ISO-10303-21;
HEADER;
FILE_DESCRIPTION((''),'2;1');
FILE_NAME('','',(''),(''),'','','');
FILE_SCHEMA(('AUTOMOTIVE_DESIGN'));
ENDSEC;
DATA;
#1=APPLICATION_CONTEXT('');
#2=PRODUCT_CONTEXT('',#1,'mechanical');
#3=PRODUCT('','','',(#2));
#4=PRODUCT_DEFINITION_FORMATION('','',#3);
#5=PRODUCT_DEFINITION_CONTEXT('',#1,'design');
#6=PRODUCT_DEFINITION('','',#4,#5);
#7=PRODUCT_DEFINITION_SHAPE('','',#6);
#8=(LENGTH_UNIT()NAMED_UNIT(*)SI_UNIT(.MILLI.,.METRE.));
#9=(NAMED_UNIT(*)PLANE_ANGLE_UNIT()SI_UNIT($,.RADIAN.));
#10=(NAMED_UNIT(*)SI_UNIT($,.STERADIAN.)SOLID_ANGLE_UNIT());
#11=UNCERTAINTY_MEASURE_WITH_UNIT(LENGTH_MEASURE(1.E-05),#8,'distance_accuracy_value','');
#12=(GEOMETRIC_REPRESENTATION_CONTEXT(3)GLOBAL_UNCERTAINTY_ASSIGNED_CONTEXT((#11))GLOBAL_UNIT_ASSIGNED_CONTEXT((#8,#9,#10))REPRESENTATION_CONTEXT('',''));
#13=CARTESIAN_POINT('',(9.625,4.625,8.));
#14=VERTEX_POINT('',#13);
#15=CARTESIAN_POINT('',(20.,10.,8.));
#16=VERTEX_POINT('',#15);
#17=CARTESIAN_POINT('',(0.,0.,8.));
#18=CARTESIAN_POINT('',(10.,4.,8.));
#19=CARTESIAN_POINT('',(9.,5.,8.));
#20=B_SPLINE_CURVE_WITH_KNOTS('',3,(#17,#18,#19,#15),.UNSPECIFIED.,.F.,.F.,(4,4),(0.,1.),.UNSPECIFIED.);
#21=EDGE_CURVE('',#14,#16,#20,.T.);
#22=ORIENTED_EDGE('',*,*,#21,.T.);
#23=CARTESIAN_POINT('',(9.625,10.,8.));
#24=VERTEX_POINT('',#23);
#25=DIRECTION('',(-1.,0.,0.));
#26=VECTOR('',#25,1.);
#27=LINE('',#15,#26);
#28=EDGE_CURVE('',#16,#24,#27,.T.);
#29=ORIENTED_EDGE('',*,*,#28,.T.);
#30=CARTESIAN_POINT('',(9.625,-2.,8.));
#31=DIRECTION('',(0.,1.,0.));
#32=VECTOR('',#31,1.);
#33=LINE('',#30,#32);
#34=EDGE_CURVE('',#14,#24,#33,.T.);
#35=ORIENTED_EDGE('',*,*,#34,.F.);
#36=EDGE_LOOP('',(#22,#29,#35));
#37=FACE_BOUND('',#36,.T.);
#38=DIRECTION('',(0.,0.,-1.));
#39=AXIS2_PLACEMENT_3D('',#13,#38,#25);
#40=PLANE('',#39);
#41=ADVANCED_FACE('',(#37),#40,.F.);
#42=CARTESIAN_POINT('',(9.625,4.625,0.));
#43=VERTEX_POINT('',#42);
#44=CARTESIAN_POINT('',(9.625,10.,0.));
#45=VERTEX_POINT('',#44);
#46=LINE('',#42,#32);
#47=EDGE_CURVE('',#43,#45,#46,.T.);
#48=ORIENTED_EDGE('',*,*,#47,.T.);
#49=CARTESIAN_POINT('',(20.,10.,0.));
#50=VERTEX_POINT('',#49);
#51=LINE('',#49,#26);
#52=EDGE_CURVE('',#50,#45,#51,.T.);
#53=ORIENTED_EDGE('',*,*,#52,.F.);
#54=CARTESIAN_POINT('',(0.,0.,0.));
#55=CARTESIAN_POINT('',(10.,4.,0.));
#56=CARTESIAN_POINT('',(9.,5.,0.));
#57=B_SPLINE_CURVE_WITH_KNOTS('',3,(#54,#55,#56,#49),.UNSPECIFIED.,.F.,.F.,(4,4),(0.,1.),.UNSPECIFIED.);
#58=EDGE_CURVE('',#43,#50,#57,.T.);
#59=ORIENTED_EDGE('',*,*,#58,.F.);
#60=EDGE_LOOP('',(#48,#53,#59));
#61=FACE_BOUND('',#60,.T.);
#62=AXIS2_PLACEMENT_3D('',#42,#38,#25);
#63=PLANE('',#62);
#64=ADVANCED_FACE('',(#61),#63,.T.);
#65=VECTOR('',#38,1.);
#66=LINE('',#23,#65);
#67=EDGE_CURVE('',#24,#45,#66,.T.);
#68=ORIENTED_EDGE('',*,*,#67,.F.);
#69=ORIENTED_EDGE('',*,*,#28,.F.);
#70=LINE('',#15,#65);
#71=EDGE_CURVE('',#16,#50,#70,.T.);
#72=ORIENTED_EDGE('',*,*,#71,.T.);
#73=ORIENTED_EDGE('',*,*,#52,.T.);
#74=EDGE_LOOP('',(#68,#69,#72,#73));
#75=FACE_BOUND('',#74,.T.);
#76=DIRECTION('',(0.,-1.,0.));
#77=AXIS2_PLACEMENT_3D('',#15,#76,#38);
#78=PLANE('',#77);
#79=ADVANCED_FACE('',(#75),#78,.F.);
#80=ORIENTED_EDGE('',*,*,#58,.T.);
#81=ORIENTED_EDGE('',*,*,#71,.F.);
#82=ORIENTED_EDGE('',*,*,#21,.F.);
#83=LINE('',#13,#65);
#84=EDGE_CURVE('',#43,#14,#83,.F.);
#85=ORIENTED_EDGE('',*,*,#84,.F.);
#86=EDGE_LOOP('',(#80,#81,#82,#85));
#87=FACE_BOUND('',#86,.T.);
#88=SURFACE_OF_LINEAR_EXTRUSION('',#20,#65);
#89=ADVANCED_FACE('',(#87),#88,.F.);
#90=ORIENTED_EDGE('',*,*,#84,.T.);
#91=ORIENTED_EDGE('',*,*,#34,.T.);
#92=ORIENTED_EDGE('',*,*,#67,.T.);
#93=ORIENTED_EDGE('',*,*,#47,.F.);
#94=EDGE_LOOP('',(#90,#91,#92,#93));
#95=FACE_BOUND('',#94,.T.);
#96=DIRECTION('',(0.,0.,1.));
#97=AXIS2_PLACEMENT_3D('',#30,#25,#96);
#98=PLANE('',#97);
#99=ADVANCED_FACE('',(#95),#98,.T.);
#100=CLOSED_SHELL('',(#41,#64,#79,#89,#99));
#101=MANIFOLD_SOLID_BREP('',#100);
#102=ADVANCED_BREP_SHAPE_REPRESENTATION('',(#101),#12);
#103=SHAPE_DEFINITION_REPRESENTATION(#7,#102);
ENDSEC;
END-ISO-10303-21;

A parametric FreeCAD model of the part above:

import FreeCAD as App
import Part
import Sketcher

V = App.Vector
Q = App.Units.Quantity

doc = App.newDocument("Part")
body = doc.addObject("PartDesign::Body", "Body")

sketch1 = doc.addObject("Sketcher::SketchObject", "Sketch")
body.addObject(sketch1)
sketch1.AttachmentSupport = (doc.XY_Plane, [""])
sketch1.MapMode = "FlatFace"
sketch1.addGeometry([
    Part.LineSegment(V(20, 10, 0), V(0, 10, 0)),
    Part.LineSegment(V(0, 10, 0), V(0, 0, 0)),
    Part.BSplineCurve([V(0, 0, 0), V(10, 4, 0), V(9, 5, 0), V(20, 10, 0)], [4, 4], [0, 1], False, 3, [1, 1, 1, 1], False),
], False)
sketch1.addConstraint([
    Sketcher.Constraint("Block", 2),
    Sketcher.Constraint("Coincident", 0, 2, 1, 1),
    Sketcher.Constraint("Coincident", 1, 2, 2, 1),
    Sketcher.Constraint("Coincident", 2, 2, 0, 1),
    Sketcher.Constraint("Horizontal", 0),
    Sketcher.Constraint("Vertical", 1),
])
pad1 = doc.addObject("PartDesign::Pad", "Pad")
body.addObject(pad1)
pad1.Profile = sketch1
pad1.Length = 8

sketch2 = doc.addObject("Sketcher::SketchObject", "Sketch001")
body.addObject(sketch2)
sketch2.AttachmentSupport = (doc.XY_Plane, [""])
sketch2.MapMode = "FlatFace"
sketch2.addGeometry([
    Part.LineSegment(V(-2, 12, 0), V(-2, -2, 0)),
    Part.LineSegment(V(-2, -2, 0), V(10, -2, 0)),
    Part.LineSegment(V(10, -2, 0), V(10, 12, 0)),
    Part.LineSegment(V(10, 12, 0), V(-2, 12, 0)),
], False)
sketch2.addConstraint([
    Sketcher.Constraint("Coincident", 0, 2, 1, 1),
    Sketcher.Constraint("Coincident", 1, 2, 2, 1),
    Sketcher.Constraint("Coincident", 2, 2, 3, 1),
    Sketcher.Constraint("Coincident", 3, 2, 0, 1),
    Sketcher.Constraint("Vertical", 0),
    Sketcher.Constraint("Horizontal", 1),
    Sketcher.Constraint("Vertical", 2),
    Sketcher.Constraint("Horizontal", 3),
    Sketcher.Constraint("DistanceY", 0, 2, 0, 1, Q("14 mm")),
    Sketcher.Constraint("DistanceX", 0, 2, -1, 1, Q("2 mm")),
    Sketcher.Constraint("DistanceY", 0, 2, -1, 1, Q("2 mm")),
    Sketcher.Constraint("DistanceX", 1, 1, 1, 2, Q("11.625 mm")),
])
pocket1 = doc.addObject("PartDesign::Pocket", "Pocket")
body.addObject(pocket1)
pocket1.Profile = sketch2
pocket1.Type = "ThroughAll"
pocket1.Reversed = True

doc.recompute()
